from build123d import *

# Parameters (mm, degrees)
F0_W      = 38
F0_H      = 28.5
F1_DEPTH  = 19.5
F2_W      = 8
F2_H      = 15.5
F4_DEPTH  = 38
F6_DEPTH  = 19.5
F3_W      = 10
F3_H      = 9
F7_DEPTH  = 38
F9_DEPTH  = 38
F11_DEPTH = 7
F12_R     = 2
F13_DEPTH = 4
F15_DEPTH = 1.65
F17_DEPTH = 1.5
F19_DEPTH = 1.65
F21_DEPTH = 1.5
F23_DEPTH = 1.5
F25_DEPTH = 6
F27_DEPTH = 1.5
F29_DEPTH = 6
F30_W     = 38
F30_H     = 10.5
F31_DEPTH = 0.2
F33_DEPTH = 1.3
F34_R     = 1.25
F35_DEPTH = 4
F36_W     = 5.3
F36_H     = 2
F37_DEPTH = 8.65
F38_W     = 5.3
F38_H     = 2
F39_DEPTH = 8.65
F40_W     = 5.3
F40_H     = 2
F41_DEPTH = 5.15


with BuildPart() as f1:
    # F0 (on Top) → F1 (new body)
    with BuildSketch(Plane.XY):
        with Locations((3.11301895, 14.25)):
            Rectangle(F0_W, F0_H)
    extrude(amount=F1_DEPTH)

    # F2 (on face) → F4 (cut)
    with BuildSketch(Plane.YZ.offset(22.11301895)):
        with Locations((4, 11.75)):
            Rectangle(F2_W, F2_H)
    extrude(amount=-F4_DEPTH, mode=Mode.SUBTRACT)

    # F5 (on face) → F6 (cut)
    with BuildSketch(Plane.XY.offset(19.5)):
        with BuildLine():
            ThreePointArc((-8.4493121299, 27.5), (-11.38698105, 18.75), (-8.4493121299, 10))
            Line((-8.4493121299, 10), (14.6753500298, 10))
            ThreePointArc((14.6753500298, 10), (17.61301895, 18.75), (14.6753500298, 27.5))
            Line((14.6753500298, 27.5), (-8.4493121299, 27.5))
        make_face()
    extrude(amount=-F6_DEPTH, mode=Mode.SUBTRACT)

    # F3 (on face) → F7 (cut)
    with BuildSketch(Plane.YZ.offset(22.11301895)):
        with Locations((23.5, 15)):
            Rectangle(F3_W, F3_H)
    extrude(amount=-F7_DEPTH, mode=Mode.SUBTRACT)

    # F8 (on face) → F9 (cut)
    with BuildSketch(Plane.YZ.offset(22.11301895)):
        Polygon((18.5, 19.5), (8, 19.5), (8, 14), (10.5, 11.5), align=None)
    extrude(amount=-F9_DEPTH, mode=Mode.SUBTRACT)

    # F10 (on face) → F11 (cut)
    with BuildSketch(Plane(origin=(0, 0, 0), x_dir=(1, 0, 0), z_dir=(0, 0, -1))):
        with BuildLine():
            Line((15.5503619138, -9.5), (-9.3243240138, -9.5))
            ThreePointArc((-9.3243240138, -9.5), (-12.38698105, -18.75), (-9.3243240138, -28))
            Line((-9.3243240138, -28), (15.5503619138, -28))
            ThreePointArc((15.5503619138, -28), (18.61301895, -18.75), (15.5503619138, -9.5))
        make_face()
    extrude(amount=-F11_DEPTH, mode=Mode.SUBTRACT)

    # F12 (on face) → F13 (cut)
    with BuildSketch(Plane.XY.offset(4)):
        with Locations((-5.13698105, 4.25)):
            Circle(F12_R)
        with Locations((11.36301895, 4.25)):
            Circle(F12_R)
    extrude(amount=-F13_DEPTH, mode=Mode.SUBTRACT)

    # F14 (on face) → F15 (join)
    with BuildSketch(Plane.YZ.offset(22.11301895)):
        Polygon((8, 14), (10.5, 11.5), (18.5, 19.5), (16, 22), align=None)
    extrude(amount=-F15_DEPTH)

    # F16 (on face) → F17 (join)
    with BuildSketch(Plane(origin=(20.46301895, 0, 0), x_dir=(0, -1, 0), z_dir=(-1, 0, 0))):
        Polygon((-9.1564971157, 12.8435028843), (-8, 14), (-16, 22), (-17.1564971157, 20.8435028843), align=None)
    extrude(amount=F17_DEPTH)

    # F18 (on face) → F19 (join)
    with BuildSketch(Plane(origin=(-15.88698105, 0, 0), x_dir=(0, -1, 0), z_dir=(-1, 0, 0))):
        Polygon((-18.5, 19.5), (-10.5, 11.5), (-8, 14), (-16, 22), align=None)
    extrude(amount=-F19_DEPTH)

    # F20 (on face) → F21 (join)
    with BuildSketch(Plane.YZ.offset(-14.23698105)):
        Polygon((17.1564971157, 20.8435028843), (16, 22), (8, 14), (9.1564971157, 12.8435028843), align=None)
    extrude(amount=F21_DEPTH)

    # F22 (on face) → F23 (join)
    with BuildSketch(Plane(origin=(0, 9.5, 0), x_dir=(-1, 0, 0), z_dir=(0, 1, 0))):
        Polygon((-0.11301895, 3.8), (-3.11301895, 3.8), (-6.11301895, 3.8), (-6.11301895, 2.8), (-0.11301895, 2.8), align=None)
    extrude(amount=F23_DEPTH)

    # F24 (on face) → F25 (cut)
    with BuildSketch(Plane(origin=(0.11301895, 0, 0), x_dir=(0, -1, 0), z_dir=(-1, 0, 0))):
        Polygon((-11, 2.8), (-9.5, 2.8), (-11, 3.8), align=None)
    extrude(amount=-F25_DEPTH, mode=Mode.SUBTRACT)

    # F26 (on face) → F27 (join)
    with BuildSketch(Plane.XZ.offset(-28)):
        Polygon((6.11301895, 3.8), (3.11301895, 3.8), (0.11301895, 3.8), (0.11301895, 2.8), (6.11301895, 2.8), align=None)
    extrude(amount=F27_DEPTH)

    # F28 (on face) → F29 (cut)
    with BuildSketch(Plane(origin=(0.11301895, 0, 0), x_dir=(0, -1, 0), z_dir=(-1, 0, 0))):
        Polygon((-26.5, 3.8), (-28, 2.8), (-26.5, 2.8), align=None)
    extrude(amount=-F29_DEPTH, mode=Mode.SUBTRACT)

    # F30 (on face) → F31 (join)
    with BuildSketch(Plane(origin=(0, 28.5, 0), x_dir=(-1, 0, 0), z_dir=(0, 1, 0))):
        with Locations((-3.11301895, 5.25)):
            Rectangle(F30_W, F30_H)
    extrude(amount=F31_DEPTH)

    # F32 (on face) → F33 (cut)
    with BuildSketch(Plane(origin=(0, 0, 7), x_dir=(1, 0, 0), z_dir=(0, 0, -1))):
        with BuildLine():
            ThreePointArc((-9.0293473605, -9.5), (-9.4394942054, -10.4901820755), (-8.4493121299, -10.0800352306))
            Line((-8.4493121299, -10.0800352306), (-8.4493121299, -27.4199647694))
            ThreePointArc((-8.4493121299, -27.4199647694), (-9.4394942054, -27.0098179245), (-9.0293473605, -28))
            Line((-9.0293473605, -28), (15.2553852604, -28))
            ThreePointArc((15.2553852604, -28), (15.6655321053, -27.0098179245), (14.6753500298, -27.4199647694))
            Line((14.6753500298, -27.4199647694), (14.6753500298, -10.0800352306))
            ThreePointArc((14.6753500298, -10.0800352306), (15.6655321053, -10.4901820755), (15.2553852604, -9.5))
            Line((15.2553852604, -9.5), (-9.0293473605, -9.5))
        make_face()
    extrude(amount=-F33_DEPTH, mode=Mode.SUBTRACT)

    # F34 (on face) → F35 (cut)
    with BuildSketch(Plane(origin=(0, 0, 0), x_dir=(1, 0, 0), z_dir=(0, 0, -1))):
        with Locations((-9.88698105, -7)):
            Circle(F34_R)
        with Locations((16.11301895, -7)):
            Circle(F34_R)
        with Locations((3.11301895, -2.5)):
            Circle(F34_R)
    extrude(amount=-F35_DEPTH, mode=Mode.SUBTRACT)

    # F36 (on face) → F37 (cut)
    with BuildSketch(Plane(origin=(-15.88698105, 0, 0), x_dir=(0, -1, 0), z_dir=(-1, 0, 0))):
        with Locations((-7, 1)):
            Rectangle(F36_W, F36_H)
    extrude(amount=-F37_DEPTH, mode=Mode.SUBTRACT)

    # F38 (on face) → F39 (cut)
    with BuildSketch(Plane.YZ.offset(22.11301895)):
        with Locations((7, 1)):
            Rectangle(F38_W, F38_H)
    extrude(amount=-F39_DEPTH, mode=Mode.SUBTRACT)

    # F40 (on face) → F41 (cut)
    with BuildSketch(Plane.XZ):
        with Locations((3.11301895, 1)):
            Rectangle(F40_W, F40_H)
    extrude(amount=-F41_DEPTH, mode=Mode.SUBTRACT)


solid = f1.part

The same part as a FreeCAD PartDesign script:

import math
import FreeCAD as App
import Part
import Sketcher

V = App.Vector
Q = App.Units.Quantity


def add_polygon(sketch, points):
    """Adds a closed chain of lines whose ends are joined by coincident constraints."""
    first, n = sketch.GeometryCount, len(points)
    for a, b in zip(points, points[1:] + points[:1]):
        sketch.addGeometry(Part.LineSegment(App.Vector(*a, 0), App.Vector(*b, 0)), False)
    for i in range(n):
        sketch.addConstraint(Sketcher.Constraint("Coincident", first + i, 2, first + (i + 1) % n, 1))

doc = App.newDocument("Part")
body = doc.addObject("PartDesign::Body", "Body")

sketch1 = body.newObject("Sketcher::SketchObject", "Sketch")
sketch1.AttachmentSupport = (doc.getObject("XY_Plane"), [""])
sketch1.MapMode = "FlatFace"
add_polygon(sketch1, [(-16, 28), (-16, 0), (22, 0), (22, 28)])
sketch1.addConstraint([
    Sketcher.Constraint("Vertical", 0),
    Sketcher.Constraint("Horizontal", 1),
    Sketcher.Constraint("Vertical", 2),
    Sketcher.Constraint("Horizontal", 3),
    Sketcher.Constraint("PointOnObject", 0, 2, -1),
    Sketcher.Constraint("DistanceX", 1, 1, 1, 2, Q("38 mm")),
    Sketcher.Constraint("DistanceY", 0, 2, 0, 1, Q("28.5 mm")),
    Sketcher.Constraint("DistanceX", 0, 2, -1, 1, Q("15.886981 mm")),
])
pad1 = body.newObject("PartDesign::Pad", "Pad")
pad1.Profile = sketch1
pad1.Length = 19.5

sketch2 = body.newObject("Sketcher::SketchObject", "Sketch001")
sketch2.AttachmentSupport = (doc.getObject("YZ_Plane"), [""])
sketch2.MapMode = "FlatFace"
sketch2.AttachmentOffset = App.Placement(V(0, 0, 22.113019), App.Rotation())
add_polygon(sketch2, [(0, 20), (0, 4), (8, 4), (8, 20)])
sketch2.addConstraint([
    Sketcher.Constraint("Vertical", 0),
    Sketcher.Constraint("Horizontal", 1),
    Sketcher.Constraint("Vertical", 2),
    Sketcher.Constraint("Horizontal", 3),
    Sketcher.Constraint("PointOnObject", 0, 2, -2),
    Sketcher.Constraint("DistanceX", 1, 1, 1, 2, Q("8 mm")),
    Sketcher.Constraint("DistanceY", 0, 2, 0, 1, Q("15.5 mm")),
    Sketcher.Constraint("DistanceY", -1, 1, 0, 2, Q("4 mm")),
])
pocket1 = body.newObject("PartDesign::Pocket", "Pocket")
pocket1.Profile = sketch2
pocket1.Length = 38

sketch3 = body.newObject("Sketcher::SketchObject", "Sketch002")
sketch3.AttachmentSupport = (doc.getObject("XY_Plane"), [""])
sketch3.MapMode = "FlatFace"
sketch3.AttachmentOffset = App.Placement(V(0, 0, 19.5), App.Rotation())
sketch3.addGeometry([
    Part.ArcOfCircle(Part.Circle(V(3, 19, 0), V(0, 0, 1), 14), math.radians(143), math.radians(217)),
    Part.LineSegment(V(-8, 10, 0), V(15, 10, 0)),
    Part.ArcOfCircle(Part.Circle(V(3, 19, 0), V(0, 0, 1), 14), math.radians(-37), math.radians(37)),
    Part.LineSegment(V(15, 28, 0), V(-8, 28, 0)),
], False)
sketch3.addConstraint([
    Sketcher.Constraint("Coincident", 0, 2, 1, 1),
    Sketcher.Constraint("Coincident", 1, 2, 2, 1),
    Sketcher.Constraint("Coincident", 2, 2, 3, 1),
    Sketcher.Constraint("Coincident", 3, 2, 0, 1),
    Sketcher.Constraint("Horizontal", 1),
    Sketcher.Constraint("Horizontal", 3),
    Sketcher.Constraint("Coincident", 2, 3, 0, 3),
    Sketcher.Constraint("Equal", 0, 2),
    Sketcher.Constraint("Vertical", 1, 2, 2, 2),
    Sketcher.Constraint("Radius", 0, Q("14.5 mm")),
    Sketcher.Constraint("DistanceY", -1, 1, 0, 2, Q("10 mm")),
    Sketcher.Constraint("DistanceY", -1, 1, 2, 2, Q("27.5 mm")),
    Sketcher.Constraint("DistanceX", -1, 1, 0, 3, Q("3.113019 mm")),
])
pocket2 = body.newObject("PartDesign::Pocket", "Pocket001")
pocket2.Profile = sketch3
pocket2.Length = 19.5

sketch4 = body.newObject("Sketcher::SketchObject", "Sketch003")
sketch4.AttachmentSupport = (doc.getObject("YZ_Plane"), [""])
sketch4.MapMode = "FlatFace"
sketch4.AttachmentOffset = App.Placement(V(0, 0, 22.113019), App.Rotation())
add_polygon(sketch4, [(18, 20), (18, 10), (28, 10), (28, 20)])
sketch4.addConstraint([
    Sketcher.Constraint("Vertical", 0),
    Sketcher.Constraint("Horizontal", 1),
    Sketcher.Constraint("Vertical", 2),
    Sketcher.Constraint("Horizontal", 3),
    Sketcher.Constraint("DistanceX", 1, 1, 1, 2, Q("10 mm")),
    Sketcher.Constraint("DistanceY", 0, 2, 0, 1, Q("9 mm")),
    Sketcher.Constraint("DistanceX", -1, 1, 0, 2, Q("18.5 mm")),
    Sketcher.Constraint("DistanceY", -1, 1, 0, 2, Q("10.5 mm")),
])
pocket3 = body.newObject("PartDesign::Pocket", "Pocket002")
pocket3.Profile = sketch4
pocket3.Length = 38

sketch5 = body.newObject("Sketcher::SketchObject", "Sketch004")
sketch5.AttachmentSupport = (doc.getObject("YZ_Plane"), [""])
sketch5.MapMode = "FlatFace"
sketch5.AttachmentOffset = App.Placement(V(0, 0, 22.113019), App.Rotation())
add_polygon(sketch5, [(18.5, 19.5), (8, 19.5), (8, 14), (10.5, 11.5)])
sketch5.addConstraint([
    Sketcher.Constraint("Horizontal", 0),
    Sketcher.Constraint("Vertical", 1),
    Sketcher.Constraint("Perpendicular", 2, 3),
    Sketcher.Constraint("Angle", 2, Q("-45 deg")),
    Sketcher.Constraint("DistanceX", 0, 2, 0, 1, Q("10.5 mm")),
    Sketcher.Constraint("DistanceY", 1, 2, 1, 1, Q("5.5 mm")),
    Sketcher.Constraint("DistanceX", -1, 1, 0, 2, Q("8 mm")),
    Sketcher.Constraint("DistanceY", -1, 1, 1, 2, Q("14 mm")),
])
pocket4 = body.newObject("PartDesign::Pocket", "Pocket003")
pocket4.Profile = sketch5
pocket4.Length = 38

sketch6 = body.newObject("Sketcher::SketchObject", "Sketch005")
sketch6.AttachmentSupport = (doc.getObject("XY_Plane"), [""])
sketch6.MapMode = "FlatFace"
sketch6.addGeometry([
    Part.LineSegment(V(16, 10, 0), V(-9, 10, 0)),
    Part.ArcOfCircle(Part.Circle(V(3, 19, 0), V(0, 0, 1), 16), math.radians(143), math.radians(217)),
    Part.LineSegment(V(-9, 28, 0), V(16, 28, 0)),
    Part.ArcOfCircle(Part.Circle(V(3, 19, 0), V(0, 0, 1), 16), math.radians(-37), math.radians(37)),
], False)
sketch6.addConstraint([
    Sketcher.Constraint("Coincident", 0, 2, 1, 2),
    Sketcher.Constraint("Coincident", 1, 1, 2, 1),
    Sketcher.Constraint("Coincident", 2, 2, 3, 2),
    Sketcher.Constraint("Coincident", 3, 1, 0, 1),
    Sketcher.Constraint("Horizontal", 0),
    Sketcher.Constraint("Horizontal", 2),
    Sketcher.Constraint("Coincident", 3, 3, 1, 3),
    Sketcher.Constraint("Equal", 1, 3),
    Sketcher.Constraint("Vertical", 0, 2, 1, 1),
    Sketcher.Constraint("Radius", 1, Q("15.5 mm")),
    Sketcher.Constraint("DistanceY", -1, 1, 1, 1, Q("28 mm")),
    Sketcher.Constraint("DistanceY", -1, 1, 0, 2, Q("9.5 mm")),
    Sketcher.Constraint("DistanceX", -1, 1, 1, 3, Q("3.113019 mm")),
])
pocket5 = body.newObject("PartDesign::Pocket", "Pocket004")
pocket5.Profile = sketch6
pocket5.Length = 7
pocket5.Reversed = True

sketch7 = body.newObject("Sketcher::SketchObject", "Sketch006")
sketch7.AttachmentSupport = (doc.getObject("XY_Plane"), [""])
sketch7.MapMode = "FlatFace"
sketch7.AttachmentOffset = App.Placement(V(0, 0, 4), App.Rotation())
sketch7.addGeometry([
    Part.Circle(V(-5.1, 4.2, 0), V(0, 0, 1), 2),
    Part.Circle(V(11.4, 4.2, 0), V(0, 0, 1), 2),
], False)
sketch7.addConstraint([
    Sketcher.Constraint("Equal", 0, 1),
    Sketcher.Constraint("Horizontal", 0, 3, 1, 3),
    Sketcher.Constraint("Diameter", 0, Q("4 mm")),
    Sketcher.Constraint("DistanceX", 0, 3, 1, 3, Q("16.5 mm")),
    Sketcher.Constraint("DistanceY", -1, 1, 0, 3, Q("4.25 mm")),
    Sketcher.Constraint("DistanceX", 0, 3, -1, 1, Q("5.136981 mm")),
])
pocket6 = body.newObject("PartDesign::Pocket", "Pocket005")
pocket6.Profile = sketch7
pocket6.Length = 4

sketch8 = body.newObject("Sketcher::SketchObject", "Sketch007")
sketch8.AttachmentSupport = (doc.getObject("YZ_Plane"), [""])
sketch8.MapMode = "FlatFace"
sketch8.AttachmentOffset = App.Placement(V(0, 0, 22.113019), App.Rotation())
add_polygon(sketch8, [(8, 14), (10.5, 11.5), (18.5, 19.5), (16, 22)])
sketch8.addConstraint([
    Sketcher.Constraint("Perpendicular", 0, 1),
    Sketcher.Constraint("Perpendicular", 1, 2),
    Sketcher.Constraint("Perpendicular", 2, 3),
    Sketcher.Constraint("Angle", 0, Q("-45 deg")),
    Sketcher.Constraint("DistanceX", -1, 1, 2, 2, Q("16 mm")),
    Sketcher.Constraint("DistanceY", -1, 1, 2, 2, Q("22 mm")),
    Sketcher.Constraint("DistanceX", -1, 1, 3, 2, Q("8 mm")),
    Sketcher.Constraint("DistanceX", -1, 1, 0, 2, Q("10.5 mm")),
])
pad2 = body.newObject("PartDesign::Pad", "Pad001")
pad2.Profile = sketch8
pad2.Length = 1.65
pad2.Reversed = True

sketch9 = body.newObject("Sketcher::SketchObject", "Sketch008")
sketch9.AttachmentSupport = (doc.getObject("YZ_Plane"), [""])
sketch9.MapMode = "FlatFace"
sketch9.AttachmentOffset = App.Placement(V(0, 0, 20.463019), App.Rotation())
add_polygon(sketch9, [(9.2, 12.8), (8, 14), (16, 22), (17.2, 20.8)])
sketch9.addConstraint([
    Sketcher.Constraint("Perpendicular", 0, 1),
    Sketcher.Constraint("Perpendicular", 1, 2),
    Sketcher.Constraint("Perpendicular", 2, 3),
    Sketcher.Constraint("Angle", 0, Q("135 deg")),
    Sketcher.Constraint("DistanceX", -1, 1, 0, 2, Q("8 mm")),
    Sketcher.Constraint("DistanceY", -1, 1, 0, 2, Q("14 mm")),
    Sketcher.Constraint("DistanceX", -1, 1, 1, 2, Q("16 mm")),
    Sketcher.Constraint("Distance", 0, Q("1.635534 mm")),
])
pad3 = body.newObject("PartDesign::Pad", "Pad002")
pad3.Profile = sketch9
pad3.Length = 1.5
pad3.Reversed = True

sketch10 = body.newObject("Sketcher::SketchObject", "Sketch009")
sketch10.AttachmentSupport = (doc.getObject("YZ_Plane"), [""])
sketch10.MapMode = "FlatFace"
sketch10.AttachmentOffset = App.Placement(V(0, 0, -15.886981), App.Rotation())
add_polygon(sketch10, [(18.5, 19.5), (10.5, 11.5), (8, 14), (16, 22)])
sketch10.addConstraint([
    Sketcher.Constraint("Perpendicular", 0, 1),
    Sketcher.Constraint("Perpendicular", 1, 2),
    Sketcher.Constraint("Perpendicular", 2, 3),
    Sketcher.Constraint("Angle", 0, Q("-135 deg")),
    Sketcher.Constraint("DistanceX", -1, 1, 1, 2, Q("8 mm")),
    Sketcher.Constraint("DistanceY", -1, 1, 1, 2, Q("14 mm")),
    Sketcher.Constraint("DistanceX", -1, 1, 2, 2, Q("16 mm")),
    Sketcher.Constraint("DistanceX", -1, 1, 0, 2, Q("10.5 mm")),
])
pad4 = body.newObject("PartDesign::Pad", "Pad003")
pad4.Profile = sketch10
pad4.Length = 1.65

sketch11 = body.newObject("Sketcher::SketchObject", "Sketch010")
sketch11.AttachmentSupport = (doc.getObject("YZ_Plane"), [""])
sketch11.MapMode = "FlatFace"
sketch11.AttachmentOffset = App.Placement(V(0, 0, -14.236981), App.Rotation())
add_polygon(sketch11, [(17.2, 20.8), (16, 22), (8, 14), (9.2, 12.8)])
sketch11.addConstraint([
    Sketcher.Constraint("Perpendicular", 0, 1),
    Sketcher.Constraint("Perpendicular", 1, 2),
    Sketcher.Constraint("Perpendicular", 2, 3),
    Sketcher.Constraint("Angle", 0, Q("135 deg")),
    Sketcher.Constraint("DistanceX", -1, 1, 0, 2, Q("16 mm")),
    Sketcher.Constraint("DistanceY", -1, 1, 0, 2, Q("22 mm")),
    Sketcher.Constraint("DistanceX", -1, 1, 1, 2, Q("8 mm")),
    Sketcher.Constraint("Distance", 0, Q("1.635534 mm")),
])
pad5 = body.newObject("PartDesign::Pad", "Pad004")
pad5.Profile = sketch11
pad5.Length = 1.5

sketch12 = body.newObject("Sketcher::SketchObject", "Sketch011")
sketch12.AttachmentSupport = (doc.getObject("XZ_Plane"), [""])
sketch12.MapMode = "FlatFace"
sketch12.AttachmentOffset = App.Placement(V(0, 0, -9.5), App.Rotation())
add_polygon(sketch12, [(0.1, 3.8), (6.1, 3.8), (6.1, 2.8), (0.1, 2.8)])
sketch12.addConstraint([
    Sketcher.Constraint("Horizontal", 0),
    Sketcher.Constraint("Vertical", 1),
    Sketcher.Constraint("Horizontal", 2),
    Sketcher.Constraint("Vertical", 3),
    Sketcher.Constraint("DistanceX", 0, 1, 0, 2, Q("6 mm")),
    Sketcher.Constraint("DistanceY", 1, 2, 1, 1, Q("1 mm")),
    Sketcher.Constraint("DistanceY", -1, 1, 0, 2, Q("3.8 mm")),
    Sketcher.Constraint("DistanceX", -1, 1, 0, 2, Q("6.113019 mm")),
])
pad6 = body.newObject("PartDesign::Pad", "Pad005")
pad6.Profile = sketch12
pad6.Length = 1.5
pad6.Reversed = True

sketch13 = body.newObject("Sketcher::SketchObject", "Sketch012")
sketch13.AttachmentSupport = (doc.getObject("YZ_Plane"), [""])
sketch13.MapMode = "FlatFace"
sketch13.AttachmentOffset = App.Placement(V(0, 0, 0.113019), App.Rotation())
add_polygon(sketch13, [(11, 2.8), (9.5, 2.8), (11, 3.8)])
sketch13.addConstraint([
    Sketcher.Constraint("Horizontal", 0),
    Sketcher.Constraint("Vertical", 2),
    Sketcher.Constraint("DistanceY", 2, 2, 2, 1, Q("1 mm")),
    Sketcher.Constraint("DistanceX", 0, 2, 0, 1, Q("1.5 mm")),
    Sketcher.Constraint("DistanceX", -1, 1, 1, 2, Q("11 mm")),
    Sketcher.Constraint("DistanceY", -1, 1, 0, 2, Q("2.8 mm")),
])
pocket7 = body.newObject("PartDesign::Pocket", "Pocket006")
pocket7.Profile = sketch13
pocket7.Length = 6
pocket7.Reversed = True

sketch14 = body.newObject("Sketcher::SketchObject", "Sketch013")
sketch14.AttachmentSupport = (doc.getObject("XZ_Plane"), [""])
sketch14.MapMode = "FlatFace"
sketch14.AttachmentOffset = App.Placement(V(0, 0, -28), App.Rotation())
add_polygon(sketch14, [(6.1, 3.8), (0.1, 3.8), (0.1, 2.8), (6.1, 2.8)])
sketch14.addConstraint([
    Sketcher.Constraint("Horizontal", 0),
    Sketcher.Constraint("Vertical", 1),
    Sketcher.Constraint("Horizontal", 2),
    Sketcher.Constraint("Vertical", 3),
    Sketcher.Constraint("DistanceX", 0, 2, 0, 1, Q("6 mm")),
    Sketcher.Constraint("DistanceY", 1, 2, 1, 1, Q("1 mm")),
    Sketcher.Constraint("DistanceY", -1, 1, 0, 2, Q("3.8 mm")),
    Sketcher.Constraint("DistanceX", -1, 1, 0, 2, Q("0.113019 mm")),
])
pad7 = body.newObject("PartDesign::Pad", "Pad006")
pad7.Profile = sketch14
pad7.Length = 1.5

sketch15 = body.newObject("Sketcher::SketchObject", "Sketch014")
sketch15.AttachmentSupport = (doc.getObject("YZ_Plane"), [""])
sketch15.MapMode = "FlatFace"
sketch15.AttachmentOffset = App.Placement(V(0, 0, 0.113019), App.Rotation())
add_polygon(sketch15, [(26.5, 3.8), (28, 2.8), (26.5, 2.8)])
sketch15.addConstraint([
    Sketcher.Constraint("Horizontal", 1),
    Sketcher.Constraint("Vertical", 2),
    Sketcher.Constraint("DistanceY", 2, 1, 2, 2, Q("1 mm")),
    Sketcher.Constraint("DistanceX", 1, 2, 1, 1, Q("1.5 mm")),
    Sketcher.Constraint("DistanceX", -1, 1, 0, 2, Q("28 mm")),
    Sketcher.Constraint("DistanceY", -1, 1, 0, 2, Q("2.8 mm")),
])
pocket8 = body.newObject("PartDesign::Pocket", "Pocket007")
pocket8.Profile = sketch15
pocket8.Length = 6
pocket8.Reversed = True

sketch16 = body.newObject("Sketcher::SketchObject", "Sketch015")
sketch16.AttachmentSupport = (doc.getObject("XZ_Plane"), [""])
sketch16.MapMode = "FlatFace"
sketch16.AttachmentOffset = App.Placement(V(0, 0, -28.5), App.Rotation())
add_polygon(sketch16, [(22, 10), (22, 0), (-16, 0), (-16, 10)])
sketch16.addConstraint([
    Sketcher.Constraint("Vertical", 0),
    Sketcher.Constraint("Horizontal", 1),
    Sketcher.Constraint("Vertical", 2),
    Sketcher.Constraint("Horizontal", 3),
    Sketcher.Constraint("PointOnObject", 0, 2, -1),
    Sketcher.Constraint("DistanceX", 1, 2, 1, 1, Q("38 mm")),
    Sketcher.Constraint("DistanceY", 0, 2, 0, 1, Q("10.5 mm")),
    Sketcher.Constraint("DistanceX", -1, 1, 0, 2, Q("22.113019 mm")),
])
pad8 = body.newObject("PartDesign::Pad", "Pad007")
pad8.Profile = sketch16
pad8.Length = 0.2
pad8.Reversed = True

sketch17 = body.newObject("Sketcher::SketchObject", "Sketch016")
sketch17.AttachmentSupport = (doc.getObject("XY_Plane"), [""])
sketch17.MapMode = "FlatFace"
sketch17.AttachmentOffset = App.Placement(V(0, 0, 7), App.Rotation())
sketch17.addGeometry([
    Part.ArcOfCircle(Part.Circle(V(-9, 10.1, 0), V(0, 0, 1), 0.6), math.radians(0), math.radians(270)),
    Part.LineSegment(V(-8.4, 10.1, 0), V(-8.4, 27.4, 0)),
    Part.ArcOfCircle(Part.Circle(V(-9, 27.4, 0), V(0, 0, 1), 0.6), math.radians(90), math.radians(360)),
    Part.LineSegment(V(-9, 28, 0), V(15.3, 28, 0)),
    Part.ArcOfCircle(Part.Circle(V(15.3, 27.4, 0), V(0, 0, 1), 0.6), math.radians(180), math.radians(450)),
    Part.LineSegment(V(14.7, 27.4, 0), V(14.7, 10.1, 0)),
    Part.ArcOfCircle(Part.Circle(V(15.3, 10.1, 0), V(0, 0, 1), 0.6), math.radians(-90), math.radians(180)),
    Part.LineSegment(V(15.3, 9.5, 0), V(-9, 9.5, 0)),
], False)
sketch17.addConstraint([
    Sketcher.Constraint("Tangent", 0, 1, 1, 1),
    Sketcher.Constraint("Tangent", 1, 2, 2, 2),
    Sketcher.Constraint("Tangent", 2, 1, 3, 1),
    Sketcher.Constraint("Tangent", 3, 2, 4, 2),
    Sketcher.Constraint("Tangent", 4, 1, 5, 1),
    Sketcher.Constraint("Tangent", 5, 2, 6, 2),
    Sketcher.Constraint("Tangent", 6, 1, 7, 1),
    Sketcher.Constraint("Tangent", 7, 2, 0, 2),
    Sketcher.Constraint("Vertical", 1),
    Sketcher.Constraint("Horizontal", 3),
    Sketcher.Constraint("Vertical", 5),
    Sketcher.Constraint("Horizontal", 7),
    Sketcher.Constraint("Equal", 0, 2),
    Sketcher.Constraint("Equal", 2, 4),
    Sketcher.Constraint("Equal", 4, 6),
    Sketcher.Constraint("DistanceY", -1, 1, 2, 1, Q("28 mm")),
    Sketcher.Constraint("DistanceY", -1, 1, 6, 1, Q("9.5 mm")),
    Sketcher.Constraint("Radius", 0, Q("0.580035 mm")),
    Sketcher.Constraint("DistanceX", 3, 1, 3, 2, Q("24.284733 mm")),
    Sketcher.Constraint("DistanceX", -1, 1, 4, 1, Q("14.67535 mm")),
])
pocket9 = body.newObject("PartDesign::Pocket", "Pocket008")
pocket9.Profile = sketch17
pocket9.Length = 1.3
pocket9.Reversed = True

sketch18 = body.newObject("Sketcher::SketchObject", "Sketch017")
sketch18.AttachmentSupport = (doc.getObject("XY_Plane"), [""])
sketch18.MapMode = "FlatFace"
sketch18.addGeometry([
    Part.Circle(V(-9.9, 7, 0), V(0, 0, 1), 1.2),
    Part.Circle(V(16.1, 7, 0), V(0, 0, 1), 1.2),
    Part.Circle(V(3.1, 2.5, 0), V(0, 0, 1), 1.2),
], False)
sketch18.addConstraint([
    Sketcher.Constraint("Equal", 0, 1),
    Sketcher.Constraint("Equal", 1, 2),
    Sketcher.Constraint("Horizontal", 0, 3, 1, 3),
    Sketcher.Constraint("Diameter", 0, Q("2.5 mm")),
    Sketcher.Constraint("DistanceY", -1, 1, 0, 3, Q("7 mm")),
    Sketcher.Constraint("DistanceX", 0, 3, 1, 3, Q("26 mm")),
    Sketcher.Constraint("DistanceX", 0, 3, 2, 3, Q("13 mm")),
    Sketcher.Constraint("DistanceY", -1, 1, 2, 3, Q("2.5 mm")),
    Sketcher.Constraint("DistanceX", 0, 3, -1, 1, Q("9.886981 mm")),
])
pocket10 = body.newObject("PartDesign::Pocket", "Pocket009")
pocket10.Profile = sketch18
pocket10.Length = 4
pocket10.Reversed = True

sketch19 = body.newObject("Sketcher::SketchObject", "Sketch018")
sketch19.AttachmentSupport = (doc.getObject("YZ_Plane"), [""])
sketch19.MapMode = "FlatFace"
sketch19.AttachmentOffset = App.Placement(V(0, 0, -15.886981), App.Rotation())
add_polygon(sketch19, [(9.7, 2), (9.7, 0), (4.3, 0), (4.3, 2)])
sketch19.addConstraint([
    Sketcher.Constraint("Vertical", 0),
    Sketcher.Constraint("Horizontal", 1),
    Sketcher.Constraint("Vertical", 2),
    Sketcher.Constraint("Horizontal", 3),
    Sketcher.Constraint("PointOnObject", 0, 2, -1),
    Sketcher.Constraint("DistanceY", 0, 2, 0, 1, Q("2 mm")),
    Sketcher.Constraint("DistanceX", 1, 2, 1, 1, Q("5.3 mm")),
    Sketcher.Constraint("DistanceX", -1, 1, 0, 2, Q("9.65 mm")),
])
pocket11 = body.newObject("PartDesign::Pocket", "Pocket010")
pocket11.Profile = sketch19
pocket11.Length = 8.65
pocket11.Reversed = True

sketch20 = body.newObject("Sketcher::SketchObject", "Sketch019")
sketch20.AttachmentSupport = (doc.getObject("YZ_Plane"), [""])
sketch20.MapMode = "FlatFace"
sketch20.AttachmentOffset = App.Placement(V(0, 0, 22.113019), App.Rotation())
add_polygon(sketch20, [(4.3, 2), (4.3, 0), (9.7, 0), (9.7, 2)])
sketch20.addConstraint([
    Sketcher.Constraint("Vertical", 0),
    Sketcher.Constraint("Horizontal", 1),
    Sketcher.Constraint("Vertical", 2),
    Sketcher.Constraint("Horizontal", 3),
    Sketcher.Constraint("PointOnObject", 0, 2, -1),
    Sketcher.Constraint("DistanceY", 0, 2, 0, 1, Q("2 mm")),
    Sketcher.Constraint("DistanceX", 1, 1, 1, 2, Q("5.3 mm")),
    Sketcher.Constraint("DistanceX", -1, 1, 0, 2, Q("4.35 mm")),
])
pocket12 = body.newObject("PartDesign::Pocket", "Pocket011")
pocket12.Profile = sketch20
pocket12.Length = 8.65

sketch21 = body.newObject("Sketcher::SketchObject", "Sketch020")
sketch21.AttachmentSupport = (doc.getObject("XZ_Plane"), [""])
sketch21.MapMode = "FlatFace"
add_polygon(sketch21, [(0.5, 2), (0.5, 0), (5.8, 0), (5.8, 2)])
sketch21.addConstraint([
    Sketcher.Constraint("Vertical", 0),
    Sketcher.Constraint("Horizontal", 1),
    Sketcher.Constraint("Vertical", 2),
    Sketcher.Constraint("Horizontal", 3),
    Sketcher.Constraint("PointOnObject", 0, 2, -1),
    Sketcher.Constraint("DistanceY", 0, 2, 0, 1, Q("2 mm")),
    Sketcher.Constraint("DistanceX", 1, 1, 1, 2, Q("5.3 mm")),
    Sketcher.Constraint("DistanceX", -1, 1, 0, 2, Q("0.463019 mm")),
])
pocket13 = body.newObject("PartDesign::Pocket", "Pocket012")
pocket13.Profile = sketch21
pocket13.Length = 5.15

doc.recompute()
